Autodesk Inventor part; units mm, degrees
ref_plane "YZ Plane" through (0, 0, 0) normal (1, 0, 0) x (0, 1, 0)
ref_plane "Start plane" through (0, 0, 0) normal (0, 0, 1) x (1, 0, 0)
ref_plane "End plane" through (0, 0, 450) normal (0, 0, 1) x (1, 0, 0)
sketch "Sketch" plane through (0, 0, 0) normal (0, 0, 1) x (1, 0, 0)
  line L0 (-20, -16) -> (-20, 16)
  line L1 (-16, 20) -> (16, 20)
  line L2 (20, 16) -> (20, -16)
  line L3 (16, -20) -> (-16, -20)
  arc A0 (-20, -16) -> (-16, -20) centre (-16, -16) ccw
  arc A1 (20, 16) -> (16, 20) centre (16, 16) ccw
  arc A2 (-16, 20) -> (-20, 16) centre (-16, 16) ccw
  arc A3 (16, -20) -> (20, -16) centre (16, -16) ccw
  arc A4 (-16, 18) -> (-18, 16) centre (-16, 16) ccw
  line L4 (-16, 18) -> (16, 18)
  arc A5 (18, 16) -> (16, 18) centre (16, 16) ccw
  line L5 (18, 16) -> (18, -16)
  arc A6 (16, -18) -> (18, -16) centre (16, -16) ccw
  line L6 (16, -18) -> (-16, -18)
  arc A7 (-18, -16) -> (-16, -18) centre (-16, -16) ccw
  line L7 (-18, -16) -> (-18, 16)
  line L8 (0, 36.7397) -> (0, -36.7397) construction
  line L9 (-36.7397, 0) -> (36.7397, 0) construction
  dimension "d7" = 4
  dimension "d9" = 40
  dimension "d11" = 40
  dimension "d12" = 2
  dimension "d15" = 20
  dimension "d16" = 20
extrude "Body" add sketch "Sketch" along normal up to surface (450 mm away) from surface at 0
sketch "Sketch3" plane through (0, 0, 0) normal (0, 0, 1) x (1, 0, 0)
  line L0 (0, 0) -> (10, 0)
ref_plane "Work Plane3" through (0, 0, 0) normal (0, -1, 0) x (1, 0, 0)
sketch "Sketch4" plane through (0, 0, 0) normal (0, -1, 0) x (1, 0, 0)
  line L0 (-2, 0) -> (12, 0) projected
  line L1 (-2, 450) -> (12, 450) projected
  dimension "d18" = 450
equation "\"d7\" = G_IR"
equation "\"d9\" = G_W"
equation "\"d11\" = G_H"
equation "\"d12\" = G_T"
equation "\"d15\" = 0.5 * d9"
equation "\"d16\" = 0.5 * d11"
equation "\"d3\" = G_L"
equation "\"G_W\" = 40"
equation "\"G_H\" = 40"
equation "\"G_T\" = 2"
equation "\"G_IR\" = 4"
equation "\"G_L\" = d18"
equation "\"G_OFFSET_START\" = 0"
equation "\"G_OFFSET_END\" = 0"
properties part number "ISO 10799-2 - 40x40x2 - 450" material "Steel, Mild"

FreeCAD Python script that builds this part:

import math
import FreeCAD as App
import Part
import Sketcher
from FreeCAD import Vector
Q = App.Units.Quantity

doc = App.newDocument("Part")
body = doc.addObject("PartDesign::Body", "Body")

# Sketch on XY plane
sketch1 = body.newObject("Sketcher::SketchObject", "Sketch")
sketch1.AttachmentSupport = (doc.getObject("XY_Plane"), [""])
sketch1.MapMode = "FlatFace"
sketch1.addGeometry(Part.LineSegment(Vector(-20, 16, 0), Vector(-20, -16, 0)), False)
sketch1.addGeometry(Part.ArcOfCircle(Part.Circle(Vector(-16, -16, 0), Vector(0, 0, 1), 4), math.radians(180), math.radians(270)), False)
sketch1.addGeometry(Part.LineSegment(Vector(-16, -20, 0), Vector(16, -20, 0)), False)
sketch1.addGeometry(Part.ArcOfCircle(Part.Circle(Vector(16, -16, 0), Vector(0, 0, 1), 4), math.radians(-90), math.radians(0)), False)
sketch1.addGeometry(Part.LineSegment(Vector(20, -16, 0), Vector(20, 16, 0)), False)
sketch1.addGeometry(Part.ArcOfCircle(Part.Circle(Vector(16, 16, 0), Vector(0, 0, 1), 4), math.radians(0), math.radians(90)), False)
sketch1.addGeometry(Part.LineSegment(Vector(16, 20, 0), Vector(-16, 20, 0)), False)
sketch1.addGeometry(Part.ArcOfCircle(Part.Circle(Vector(-16, 16, 0), Vector(0, 0, 1), 4), math.radians(90), math.radians(180)), False)
sketch1.addGeometry(Part.ArcOfCircle(Part.Circle(Vector(-16, 16, 0), Vector(0, 0, 1), 2), math.radians(90), math.radians(180)), False)
sketch1.addGeometry(Part.LineSegment(Vector(-16, 18, 0), Vector(16, 18, 0)), False)
sketch1.addGeometry(Part.ArcOfCircle(Part.Circle(Vector(16, 16, 0), Vector(0, 0, 1), 2), math.radians(0), math.radians(90)), False)
sketch1.addGeometry(Part.LineSegment(Vector(18, 16, 0), Vector(18, -16, 0)), False)
sketch1.addGeometry(Part.ArcOfCircle(Part.Circle(Vector(16, -16, 0), Vector(0, 0, 1), 2), math.radians(-90), math.radians(0)), False)
sketch1.addGeometry(Part.LineSegment(Vector(16, -18, 0), Vector(-16, -18, 0)), False)
sketch1.addGeometry(Part.ArcOfCircle(Part.Circle(Vector(-16, -16, 0), Vector(0, 0, 1), 2), math.radians(180), math.radians(270)), False)
sketch1.addGeometry(Part.LineSegment(Vector(-18, -16, 0), Vector(-18, 16, 0)), False)
sketch1.addConstraint(Sketcher.Constraint("Tangent", 0, 2, 1, 1))
sketch1.addConstraint(Sketcher.Constraint("Tangent", 1, 2, 2, 1))
sketch1.addConstraint(Sketcher.Constraint("Tangent", 2, 2, 3, 1))
sketch1.addConstraint(Sketcher.Constraint("Tangent", 3, 2, 4, 1))
sketch1.addConstraint(Sketcher.Constraint("Tangent", 4, 2, 5, 1))
sketch1.addConstraint(Sketcher.Constraint("Tangent", 5, 2, 6, 1))
sketch1.addConstraint(Sketcher.Constraint("Tangent", 6, 2, 7, 1))
sketch1.addConstraint(Sketcher.Constraint("Tangent", 7, 2, 0, 1))
sketch1.addConstraint(Sketcher.Constraint("Tangent", 8, 1, 9, 1))
sketch1.addConstraint(Sketcher.Constraint("Tangent", 9, 2, 10, 2))
sketch1.addConstraint(Sketcher.Constraint("Tangent", 10, 1, 11, 1))
sketch1.addConstraint(Sketcher.Constraint("Tangent", 11, 2, 12, 2))
sketch1.addConstraint(Sketcher.Constraint("Tangent", 12, 1, 13, 1))
sketch1.addConstraint(Sketcher.Constraint("Tangent", 13, 2, 14, 2))
sketch1.addConstraint(Sketcher.Constraint("Tangent", 14, 1, 15, 1))
sketch1.addConstraint(Sketcher.Constraint("Tangent", 15, 2, 8, 2))
sketch1.addConstraint(Sketcher.Constraint("Vertical", 0))
sketch1.addConstraint(Sketcher.Constraint("Horizontal", 2))
sketch1.addConstraint(Sketcher.Constraint("Vertical", 4))
sketch1.addConstraint(Sketcher.Constraint("Horizontal", 6))
sketch1.addConstraint(Sketcher.Constraint("Horizontal", 9))
sketch1.addConstraint(Sketcher.Constraint("Vertical", 11))
sketch1.addConstraint(Sketcher.Constraint("Horizontal", 13))
sketch1.addConstraint(Sketcher.Constraint("Vertical", 15))
sketch1.addConstraint(Sketcher.Constraint("Coincident", 8, 3, 7, 3))
sketch1.addConstraint(Sketcher.Constraint("Coincident", 10, 3, 5, 3))
sketch1.addConstraint(Sketcher.Constraint("Coincident", 12, 3, 3, 3))
sketch1.addConstraint(Sketcher.Constraint("Equal", 1, 3))
sketch1.addConstraint(Sketcher.Constraint("Equal", 3, 5))
sketch1.addConstraint(Sketcher.Constraint("Equal", 5, 7))
sketch1.addConstraint(Sketcher.Constraint("Equal", 12, 14))
sketch1.addConstraint(Sketcher.Constraint("Symmetric", 1, 3, 5, 3, -1, 1))
sketch1.addConstraint(Sketcher.Constraint("Equal", 13, 0))
sketch1.addConstraint(Sketcher.Constraint("Radius", 1, Q("4 mm")))
sketch1.addConstraint(Sketcher.Constraint("Radius", 8, Q("2 mm")))
sketch1.addConstraint(Sketcher.Constraint("DistanceX", 0, 2, -1, 1, Q("20 mm")))
pad1 = body.newObject("PartDesign::Pad", "Pad")
pad1.Profile = sketch1
pad1.Length = 450

doc.recompute()
